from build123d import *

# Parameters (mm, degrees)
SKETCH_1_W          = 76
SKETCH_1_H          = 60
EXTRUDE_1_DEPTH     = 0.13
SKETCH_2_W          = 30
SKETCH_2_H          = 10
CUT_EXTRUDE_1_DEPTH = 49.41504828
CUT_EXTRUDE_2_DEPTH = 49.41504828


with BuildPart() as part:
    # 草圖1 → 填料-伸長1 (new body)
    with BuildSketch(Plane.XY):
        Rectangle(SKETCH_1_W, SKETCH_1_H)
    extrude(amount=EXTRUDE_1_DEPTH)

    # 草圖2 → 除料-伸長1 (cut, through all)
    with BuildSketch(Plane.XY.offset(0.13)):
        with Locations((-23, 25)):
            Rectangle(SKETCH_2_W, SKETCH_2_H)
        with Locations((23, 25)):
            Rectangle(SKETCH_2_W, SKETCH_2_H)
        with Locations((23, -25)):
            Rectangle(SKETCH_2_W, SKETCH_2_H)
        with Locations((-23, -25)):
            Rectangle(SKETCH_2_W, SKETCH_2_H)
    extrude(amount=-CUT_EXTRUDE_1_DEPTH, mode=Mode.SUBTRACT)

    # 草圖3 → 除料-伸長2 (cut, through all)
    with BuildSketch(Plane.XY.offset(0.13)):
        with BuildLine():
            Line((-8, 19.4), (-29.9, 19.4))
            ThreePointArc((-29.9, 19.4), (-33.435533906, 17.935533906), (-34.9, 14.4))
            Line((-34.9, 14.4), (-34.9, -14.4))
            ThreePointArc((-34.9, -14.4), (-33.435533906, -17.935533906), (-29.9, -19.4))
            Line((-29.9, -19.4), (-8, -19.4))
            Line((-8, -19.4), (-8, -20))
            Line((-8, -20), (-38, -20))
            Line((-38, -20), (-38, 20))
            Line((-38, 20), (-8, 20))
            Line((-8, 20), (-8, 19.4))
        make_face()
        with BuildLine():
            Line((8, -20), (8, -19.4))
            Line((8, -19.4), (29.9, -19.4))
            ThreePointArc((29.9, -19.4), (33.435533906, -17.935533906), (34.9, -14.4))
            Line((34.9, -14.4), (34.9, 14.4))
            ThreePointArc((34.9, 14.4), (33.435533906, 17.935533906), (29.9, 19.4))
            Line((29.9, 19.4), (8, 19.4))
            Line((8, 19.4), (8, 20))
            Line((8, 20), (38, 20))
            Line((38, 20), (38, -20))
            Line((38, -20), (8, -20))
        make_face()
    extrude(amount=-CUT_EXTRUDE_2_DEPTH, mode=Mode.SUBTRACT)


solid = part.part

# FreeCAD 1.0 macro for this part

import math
import FreeCAD as App
import Part
import Sketcher


def add_polygon(sketch, points):
    """Adds a closed chain of lines whose ends are joined by coincident constraints."""
    first, n = sketch.GeometryCount, len(points)
    for a, b in zip(points, points[1:] + points[:1]):
        sketch.addGeometry(Part.LineSegment(App.Vector(*a, 0), App.Vector(*b, 0)), False)
    for i in range(n):
        sketch.addConstraint(Sketcher.Constraint("Coincident", first + i, 2, first + (i + 1) % n, 1))

doc = App.newDocument("Part")
body = doc.addObject("PartDesign::Body", "Body")

# Sketch on XY plane
sketch1 = doc.addObject("Sketcher::SketchObject", "Sketch")
body.addObject(sketch1)
sketch1.AttachmentSupport = (doc.XY_Plane, [""])
sketch1.MapMode = "FlatFace"
add_polygon(sketch1, [(-38, 30), (-38, -30), (38, -30), (38, 30)])  # lines 0-3
sketch1.addConstraint(Sketcher.Constraint("Vertical", 0))
sketch1.addConstraint(Sketcher.Constraint("Horizontal", 1))
sketch1.addConstraint(Sketcher.Constraint("Vertical", 2))
sketch1.addConstraint(Sketcher.Constraint("Horizontal", 3))
sketch1.addConstraint(Sketcher.Constraint("Symmetric", 0, 2, 2, 2, -1, 1))
sketch1.addConstraint(Sketcher.Constraint("DistanceX", 1, 1, 1, 2, 76.0))
sketch1.addConstraint(Sketcher.Constraint("DistanceY", 0, 2, 0, 1, 60.0))
pad1 = doc.addObject("PartDesign::Pad", "Pad")
body.addObject(pad1)
pad1.Profile = sketch1
pad1.Length = 0.13

# Sketch on XY plane
sketch2 = doc.addObject("Sketcher::SketchObject", "Sketch001")
body.addObject(sketch2)
sketch2.AttachmentSupport = (doc.XY_Plane, [""])
sketch2.MapMode = "FlatFace"
sketch2.AttachmentOffset = App.Placement(App.Vector(0, 0, 0.13), App.Rotation())
add_polygon(sketch2, [(-38, 30), (-38, 20), (-8, 20), (-8, 30)])  # lines 0-3
add_polygon(sketch2, [(8, 30), (8, 20), (38, 20), (38, 30)])  # lines 4-7
add_polygon(sketch2, [(8, -20), (8, -30), (38, -30), (38, -20)])  # lines 8-11
add_polygon(sketch2, [(-38, -20), (-38, -30), (-8, -30), (-8, -20)])  # lines 12-15
sketch2.addConstraint(Sketcher.Constraint("Vertical", 0))
sketch2.addConstraint(Sketcher.Constraint("Horizontal", 1))
sketch2.addConstraint(Sketcher.Constraint("Vertical", 2))
sketch2.addConstraint(Sketcher.Constraint("Horizontal", 3))
sketch2.addConstraint(Sketcher.Constraint("Vertical", 4))
sketch2.addConstraint(Sketcher.Constraint("Horizontal", 5))
sketch2.addConstraint(Sketcher.Constraint("Vertical", 6))
sketch2.addConstraint(Sketcher.Constraint("Horizontal", 7))
sketch2.addConstraint(Sketcher.Constraint("Vertical", 8))
sketch2.addConstraint(Sketcher.Constraint("Horizontal", 9))
sketch2.addConstraint(Sketcher.Constraint("Vertical", 10))
sketch2.addConstraint(Sketcher.Constraint("Horizontal", 11))
sketch2.addConstraint(Sketcher.Constraint("Vertical", 12))
sketch2.addConstraint(Sketcher.Constraint("Horizontal", 13))
sketch2.addConstraint(Sketcher.Constraint("Vertical", 14))
sketch2.addConstraint(Sketcher.Constraint("Horizontal", 15))
sketch2.addConstraint(Sketcher.Constraint("Symmetric", 2, 2, 8, 2, -1, 1))
sketch2.addConstraint(Sketcher.Constraint("Symmetric", 0, 2, 10, 2, -1, 1))
sketch2.addConstraint(Sketcher.Constraint("Symmetric", 6, 2, 12, 2, -1, 1))
sketch2.addConstraint(Sketcher.Constraint("Symmetric", 4, 2, 14, 2, -1, 1))
sketch2.addConstraint(Sketcher.Constraint("Symmetric", 1, 2, 4, 2, -2))
sketch2.addConstraint(Sketcher.Constraint("Symmetric", 3, 2, 6, 2, -2))
sketch2.addConstraint(Sketcher.Constraint("DistanceX", 1, 1, 1, 2, 30.0))
sketch2.addConstraint(Sketcher.Constraint("DistanceY", 0, 2, 0, 1, 10.0))
sketch2.addConstraint(Sketcher.Constraint("DistanceX", 0, 2, -1, 1, 38.0))
sketch2.addConstraint(Sketcher.Constraint("DistanceY", -1, 1, 0, 2, 20.0))
pocket1 = doc.addObject("PartDesign::Pocket", "Pocket")
body.addObject(pocket1)
pocket1.Profile = sketch2
pocket1.Type = "ThroughAll"

# Sketch on XY plane
sketch3 = doc.addObject("Sketcher::SketchObject", "Sketch002")
body.addObject(sketch3)
sketch3.AttachmentSupport = (doc.XY_Plane, [""])
sketch3.MapMode = "FlatFace"
sketch3.AttachmentOffset = App.Placement(App.Vector(0, 0, 0.13), App.Rotation())
sketch3.addGeometry(Part.LineSegment(App.Vector(-29.9, 19.4, 0), App.Vector(-8, 19.4, 0)), False)
sketch3.addGeometry(Part.LineSegment(App.Vector(-8, 19.4, 0), App.Vector(-8, 20, 0)), False)
sketch3.addGeometry(Part.LineSegment(App.Vector(-8, 20, 0), App.Vector(-38, 20, 0)), False)
sketch3.addGeometry(Part.LineSegment(App.Vector(-38, 20, 0), App.Vector(-38, -20, 0)), False)
sketch3.addGeometry(Part.LineSegment(App.Vector(-38, -20, 0), App.Vector(-8, -20, 0)), False)
sketch3.addGeometry(Part.LineSegment(App.Vector(-8, -20, 0), App.Vector(-8, -19.4, 0)), False)
sketch3.addGeometry(Part.LineSegment(App.Vector(-8, -19.4, 0), App.Vector(-29.9, -19.4, 0)), False)
sketch3.addGeometry(Part.ArcOfCircle(Part.Circle(App.Vector(-29.9, -14.4, 0), App.Vector(0, 0, 1), 5), math.radians(180), math.radians(270)), False)
sketch3.addGeometry(Part.LineSegment(App.Vector(-34.9, -14.4, 0), App.Vector(-34.9, 14.4, 0)), False)
sketch3.addGeometry(Part.ArcOfCircle(Part.Circle(App.Vector(-29.9, 14.4, 0), App.Vector(0, 0, 1), 5), math.radians(90), math.radians(180)), False)
sketch3.addGeometry(Part.LineSegment(App.Vector(8, -19.4, 0), App.Vector(8, -20, 0)), False)
sketch3.addGeometry(Part.LineSegment(App.Vector(8, -20, 0), App.Vector(38, -20, 0)), False)
sketch3.addGeometry(Part.LineSegment(App.Vector(38, -20, 0), App.Vector(38, 20, 0)), False)
sketch3.addGeometry(Part.LineSegment(App.Vector(38, 20, 0), App.Vector(8, 20, 0)), False)
sketch3.addGeometry(Part.LineSegment(App.Vector(8, 20, 0), App.Vector(8, 19.4, 0)), False)
sketch3.addGeometry(Part.LineSegment(App.Vector(8, 19.4, 0), App.Vector(29.9, 19.4, 0)), False)
sketch3.addGeometry(Part.ArcOfCircle(Part.Circle(App.Vector(29.9, 14.4, 0), App.Vector(0, 0, 1), 5), math.radians(0), math.radians(90)), False)
sketch3.addGeometry(Part.LineSegment(App.Vector(34.9, 14.4, 0), App.Vector(34.9, -14.4, 0)), False)
sketch3.addGeometry(Part.ArcOfCircle(Part.Circle(App.Vector(29.9, -14.4, 0), App.Vector(0, 0, 1), 5), math.radians(-90), math.radians(0)), False)
sketch3.addGeometry(Part.LineSegment(App.Vector(29.9, -19.4, 0), App.Vector(8, -19.4, 0)), False)
sketch3.addConstraint(Sketcher.Constraint("Coincident", 0, 2, 1, 1))
sketch3.addConstraint(Sketcher.Constraint("Coincident", 1, 2, 2, 1))
sketch3.addConstraint(Sketcher.Constraint("Coincident", 2, 2, 3, 1))
sketch3.addConstraint(Sketcher.Constraint("Coincident", 3, 2, 4, 1))
sketch3.addConstraint(Sketcher.Constraint("Coincident", 4, 2, 5, 1))
sketch3.addConstraint(Sketcher.Constraint("Coincident", 5, 2, 6, 1))
sketch3.addConstraint(Sketcher.Constraint("Tangent", 6, 2, 7, 2))
sketch3.addConstraint(Sketcher.Constraint("Tangent", 7, 1, 8, 1))
sketch3.addConstraint(Sketcher.Constraint("Tangent", 8, 2, 9, 2))
sketch3.addConstraint(Sketcher.Constraint("Tangent", 9, 1, 0, 1))
sketch3.addConstraint(Sketcher.Constraint("Coincident", 10, 2, 11, 1))
sketch3.addConstraint(Sketcher.Constraint("Coincident", 11, 2, 12, 1))
sketch3.addConstraint(Sketcher.Constraint("Coincident", 12, 2, 13, 1))
sketch3.addConstraint(Sketcher.Constraint("Coincident", 13, 2, 14, 1))
sketch3.addConstraint(Sketcher.Constraint("Coincident", 14, 2, 15, 1))
sketch3.addConstraint(Sketcher.Constraint("Tangent", 15, 2, 16, 2))
sketch3.addConstraint(Sketcher.Constraint("Tangent", 16, 1, 17, 1))
sketch3.addConstraint(Sketcher.Constraint("Tangent", 17, 2, 18, 2))
sketch3.addConstraint(Sketcher.Constraint("Tangent", 18, 1, 19, 1))
sketch3.addConstraint(Sketcher.Constraint("Coincident", 19, 2, 10, 1))
sketch3.addConstraint(Sketcher.Constraint("Horizontal", 0))
sketch3.addConstraint(Sketcher.Constraint("Vertical", 1))
sketch3.addConstraint(Sketcher.Constraint("Horizontal", 2))
sketch3.addConstraint(Sketcher.Constraint("Vertical", 3))
sketch3.addConstraint(Sketcher.Constraint("Horizontal", 4))
sketch3.addConstraint(Sketcher.Constraint("Vertical", 5))
sketch3.addConstraint(Sketcher.Constraint("Horizontal", 6))
sketch3.addConstraint(Sketcher.Constraint("Vertical", 8))
sketch3.addConstraint(Sketcher.Constraint("Vertical", 10))
sketch3.addConstraint(Sketcher.Constraint("Horizontal", 11))
sketch3.addConstraint(Sketcher.Constraint("Vertical", 12))
sketch3.addConstraint(Sketcher.Constraint("Horizontal", 13))
sketch3.addConstraint(Sketcher.Constraint("Vertical", 14))
sketch3.addConstraint(Sketcher.Constraint("Horizontal", 15))
sketch3.addConstraint(Sketcher.Constraint("Vertical", 17))
sketch3.addConstraint(Sketcher.Constraint("Horizontal", 19))
sketch3.addConstraint(Sketcher.Constraint("Equal", 7, 9))
sketch3.addConstraint(Sketcher.Constraint("Equal", 9, 16))
sketch3.addConstraint(Sketcher.Constraint("Equal", 16, 18))
sketch3.addConstraint(Sketcher.Constraint("Symmetric", 7, 3, 16, 3, -1, 1))
sketch3.addConstraint(Sketcher.Constraint("Symmetric", 1, 2, 10, 2, -1, 1))
sketch3.addConstraint(Sketcher.Constraint("Symmetric", 3, 2, 12, 2, -1, 1))
sketch3.addConstraint(Sketcher.Constraint("Symmetric", 4, 2, 10, 2, -2))
sketch3.addConstraint(Sketcher.Constraint("Symmetric", 0, 2, 14, 2, -2))
sketch3.addConstraint(Sketcher.Constraint("Horizontal", 7, 3, 18, 3))
sketch3.addConstraint(Sketcher.Constraint("Radius", 7, 5.0))
sketch3.addConstraint(Sketcher.Constraint("DistanceX", 2, 2, 2, 1, 30.0))
sketch3.addConstraint(Sketcher.Constraint("DistanceY", 3, 2, 3, 1, 40.0))
sketch3.addConstraint(Sketcher.Constraint("DistanceX", 0, 1, 0, 2, 21.9))
sketch3.addConstraint(Sketcher.Constraint("DistanceY", 1, 1, 1, 2, 0.6))
sketch3.addConstraint(Sketcher.Constraint("DistanceX", 0, 2, -1, 1, 8.0))
pocket2 = doc.addObject("PartDesign::Pocket", "Pocket001")
body.addObject(pocket2)
pocket2.Profile = sketch3
pocket2.Type = "ThroughAll"

doc.recompute()
